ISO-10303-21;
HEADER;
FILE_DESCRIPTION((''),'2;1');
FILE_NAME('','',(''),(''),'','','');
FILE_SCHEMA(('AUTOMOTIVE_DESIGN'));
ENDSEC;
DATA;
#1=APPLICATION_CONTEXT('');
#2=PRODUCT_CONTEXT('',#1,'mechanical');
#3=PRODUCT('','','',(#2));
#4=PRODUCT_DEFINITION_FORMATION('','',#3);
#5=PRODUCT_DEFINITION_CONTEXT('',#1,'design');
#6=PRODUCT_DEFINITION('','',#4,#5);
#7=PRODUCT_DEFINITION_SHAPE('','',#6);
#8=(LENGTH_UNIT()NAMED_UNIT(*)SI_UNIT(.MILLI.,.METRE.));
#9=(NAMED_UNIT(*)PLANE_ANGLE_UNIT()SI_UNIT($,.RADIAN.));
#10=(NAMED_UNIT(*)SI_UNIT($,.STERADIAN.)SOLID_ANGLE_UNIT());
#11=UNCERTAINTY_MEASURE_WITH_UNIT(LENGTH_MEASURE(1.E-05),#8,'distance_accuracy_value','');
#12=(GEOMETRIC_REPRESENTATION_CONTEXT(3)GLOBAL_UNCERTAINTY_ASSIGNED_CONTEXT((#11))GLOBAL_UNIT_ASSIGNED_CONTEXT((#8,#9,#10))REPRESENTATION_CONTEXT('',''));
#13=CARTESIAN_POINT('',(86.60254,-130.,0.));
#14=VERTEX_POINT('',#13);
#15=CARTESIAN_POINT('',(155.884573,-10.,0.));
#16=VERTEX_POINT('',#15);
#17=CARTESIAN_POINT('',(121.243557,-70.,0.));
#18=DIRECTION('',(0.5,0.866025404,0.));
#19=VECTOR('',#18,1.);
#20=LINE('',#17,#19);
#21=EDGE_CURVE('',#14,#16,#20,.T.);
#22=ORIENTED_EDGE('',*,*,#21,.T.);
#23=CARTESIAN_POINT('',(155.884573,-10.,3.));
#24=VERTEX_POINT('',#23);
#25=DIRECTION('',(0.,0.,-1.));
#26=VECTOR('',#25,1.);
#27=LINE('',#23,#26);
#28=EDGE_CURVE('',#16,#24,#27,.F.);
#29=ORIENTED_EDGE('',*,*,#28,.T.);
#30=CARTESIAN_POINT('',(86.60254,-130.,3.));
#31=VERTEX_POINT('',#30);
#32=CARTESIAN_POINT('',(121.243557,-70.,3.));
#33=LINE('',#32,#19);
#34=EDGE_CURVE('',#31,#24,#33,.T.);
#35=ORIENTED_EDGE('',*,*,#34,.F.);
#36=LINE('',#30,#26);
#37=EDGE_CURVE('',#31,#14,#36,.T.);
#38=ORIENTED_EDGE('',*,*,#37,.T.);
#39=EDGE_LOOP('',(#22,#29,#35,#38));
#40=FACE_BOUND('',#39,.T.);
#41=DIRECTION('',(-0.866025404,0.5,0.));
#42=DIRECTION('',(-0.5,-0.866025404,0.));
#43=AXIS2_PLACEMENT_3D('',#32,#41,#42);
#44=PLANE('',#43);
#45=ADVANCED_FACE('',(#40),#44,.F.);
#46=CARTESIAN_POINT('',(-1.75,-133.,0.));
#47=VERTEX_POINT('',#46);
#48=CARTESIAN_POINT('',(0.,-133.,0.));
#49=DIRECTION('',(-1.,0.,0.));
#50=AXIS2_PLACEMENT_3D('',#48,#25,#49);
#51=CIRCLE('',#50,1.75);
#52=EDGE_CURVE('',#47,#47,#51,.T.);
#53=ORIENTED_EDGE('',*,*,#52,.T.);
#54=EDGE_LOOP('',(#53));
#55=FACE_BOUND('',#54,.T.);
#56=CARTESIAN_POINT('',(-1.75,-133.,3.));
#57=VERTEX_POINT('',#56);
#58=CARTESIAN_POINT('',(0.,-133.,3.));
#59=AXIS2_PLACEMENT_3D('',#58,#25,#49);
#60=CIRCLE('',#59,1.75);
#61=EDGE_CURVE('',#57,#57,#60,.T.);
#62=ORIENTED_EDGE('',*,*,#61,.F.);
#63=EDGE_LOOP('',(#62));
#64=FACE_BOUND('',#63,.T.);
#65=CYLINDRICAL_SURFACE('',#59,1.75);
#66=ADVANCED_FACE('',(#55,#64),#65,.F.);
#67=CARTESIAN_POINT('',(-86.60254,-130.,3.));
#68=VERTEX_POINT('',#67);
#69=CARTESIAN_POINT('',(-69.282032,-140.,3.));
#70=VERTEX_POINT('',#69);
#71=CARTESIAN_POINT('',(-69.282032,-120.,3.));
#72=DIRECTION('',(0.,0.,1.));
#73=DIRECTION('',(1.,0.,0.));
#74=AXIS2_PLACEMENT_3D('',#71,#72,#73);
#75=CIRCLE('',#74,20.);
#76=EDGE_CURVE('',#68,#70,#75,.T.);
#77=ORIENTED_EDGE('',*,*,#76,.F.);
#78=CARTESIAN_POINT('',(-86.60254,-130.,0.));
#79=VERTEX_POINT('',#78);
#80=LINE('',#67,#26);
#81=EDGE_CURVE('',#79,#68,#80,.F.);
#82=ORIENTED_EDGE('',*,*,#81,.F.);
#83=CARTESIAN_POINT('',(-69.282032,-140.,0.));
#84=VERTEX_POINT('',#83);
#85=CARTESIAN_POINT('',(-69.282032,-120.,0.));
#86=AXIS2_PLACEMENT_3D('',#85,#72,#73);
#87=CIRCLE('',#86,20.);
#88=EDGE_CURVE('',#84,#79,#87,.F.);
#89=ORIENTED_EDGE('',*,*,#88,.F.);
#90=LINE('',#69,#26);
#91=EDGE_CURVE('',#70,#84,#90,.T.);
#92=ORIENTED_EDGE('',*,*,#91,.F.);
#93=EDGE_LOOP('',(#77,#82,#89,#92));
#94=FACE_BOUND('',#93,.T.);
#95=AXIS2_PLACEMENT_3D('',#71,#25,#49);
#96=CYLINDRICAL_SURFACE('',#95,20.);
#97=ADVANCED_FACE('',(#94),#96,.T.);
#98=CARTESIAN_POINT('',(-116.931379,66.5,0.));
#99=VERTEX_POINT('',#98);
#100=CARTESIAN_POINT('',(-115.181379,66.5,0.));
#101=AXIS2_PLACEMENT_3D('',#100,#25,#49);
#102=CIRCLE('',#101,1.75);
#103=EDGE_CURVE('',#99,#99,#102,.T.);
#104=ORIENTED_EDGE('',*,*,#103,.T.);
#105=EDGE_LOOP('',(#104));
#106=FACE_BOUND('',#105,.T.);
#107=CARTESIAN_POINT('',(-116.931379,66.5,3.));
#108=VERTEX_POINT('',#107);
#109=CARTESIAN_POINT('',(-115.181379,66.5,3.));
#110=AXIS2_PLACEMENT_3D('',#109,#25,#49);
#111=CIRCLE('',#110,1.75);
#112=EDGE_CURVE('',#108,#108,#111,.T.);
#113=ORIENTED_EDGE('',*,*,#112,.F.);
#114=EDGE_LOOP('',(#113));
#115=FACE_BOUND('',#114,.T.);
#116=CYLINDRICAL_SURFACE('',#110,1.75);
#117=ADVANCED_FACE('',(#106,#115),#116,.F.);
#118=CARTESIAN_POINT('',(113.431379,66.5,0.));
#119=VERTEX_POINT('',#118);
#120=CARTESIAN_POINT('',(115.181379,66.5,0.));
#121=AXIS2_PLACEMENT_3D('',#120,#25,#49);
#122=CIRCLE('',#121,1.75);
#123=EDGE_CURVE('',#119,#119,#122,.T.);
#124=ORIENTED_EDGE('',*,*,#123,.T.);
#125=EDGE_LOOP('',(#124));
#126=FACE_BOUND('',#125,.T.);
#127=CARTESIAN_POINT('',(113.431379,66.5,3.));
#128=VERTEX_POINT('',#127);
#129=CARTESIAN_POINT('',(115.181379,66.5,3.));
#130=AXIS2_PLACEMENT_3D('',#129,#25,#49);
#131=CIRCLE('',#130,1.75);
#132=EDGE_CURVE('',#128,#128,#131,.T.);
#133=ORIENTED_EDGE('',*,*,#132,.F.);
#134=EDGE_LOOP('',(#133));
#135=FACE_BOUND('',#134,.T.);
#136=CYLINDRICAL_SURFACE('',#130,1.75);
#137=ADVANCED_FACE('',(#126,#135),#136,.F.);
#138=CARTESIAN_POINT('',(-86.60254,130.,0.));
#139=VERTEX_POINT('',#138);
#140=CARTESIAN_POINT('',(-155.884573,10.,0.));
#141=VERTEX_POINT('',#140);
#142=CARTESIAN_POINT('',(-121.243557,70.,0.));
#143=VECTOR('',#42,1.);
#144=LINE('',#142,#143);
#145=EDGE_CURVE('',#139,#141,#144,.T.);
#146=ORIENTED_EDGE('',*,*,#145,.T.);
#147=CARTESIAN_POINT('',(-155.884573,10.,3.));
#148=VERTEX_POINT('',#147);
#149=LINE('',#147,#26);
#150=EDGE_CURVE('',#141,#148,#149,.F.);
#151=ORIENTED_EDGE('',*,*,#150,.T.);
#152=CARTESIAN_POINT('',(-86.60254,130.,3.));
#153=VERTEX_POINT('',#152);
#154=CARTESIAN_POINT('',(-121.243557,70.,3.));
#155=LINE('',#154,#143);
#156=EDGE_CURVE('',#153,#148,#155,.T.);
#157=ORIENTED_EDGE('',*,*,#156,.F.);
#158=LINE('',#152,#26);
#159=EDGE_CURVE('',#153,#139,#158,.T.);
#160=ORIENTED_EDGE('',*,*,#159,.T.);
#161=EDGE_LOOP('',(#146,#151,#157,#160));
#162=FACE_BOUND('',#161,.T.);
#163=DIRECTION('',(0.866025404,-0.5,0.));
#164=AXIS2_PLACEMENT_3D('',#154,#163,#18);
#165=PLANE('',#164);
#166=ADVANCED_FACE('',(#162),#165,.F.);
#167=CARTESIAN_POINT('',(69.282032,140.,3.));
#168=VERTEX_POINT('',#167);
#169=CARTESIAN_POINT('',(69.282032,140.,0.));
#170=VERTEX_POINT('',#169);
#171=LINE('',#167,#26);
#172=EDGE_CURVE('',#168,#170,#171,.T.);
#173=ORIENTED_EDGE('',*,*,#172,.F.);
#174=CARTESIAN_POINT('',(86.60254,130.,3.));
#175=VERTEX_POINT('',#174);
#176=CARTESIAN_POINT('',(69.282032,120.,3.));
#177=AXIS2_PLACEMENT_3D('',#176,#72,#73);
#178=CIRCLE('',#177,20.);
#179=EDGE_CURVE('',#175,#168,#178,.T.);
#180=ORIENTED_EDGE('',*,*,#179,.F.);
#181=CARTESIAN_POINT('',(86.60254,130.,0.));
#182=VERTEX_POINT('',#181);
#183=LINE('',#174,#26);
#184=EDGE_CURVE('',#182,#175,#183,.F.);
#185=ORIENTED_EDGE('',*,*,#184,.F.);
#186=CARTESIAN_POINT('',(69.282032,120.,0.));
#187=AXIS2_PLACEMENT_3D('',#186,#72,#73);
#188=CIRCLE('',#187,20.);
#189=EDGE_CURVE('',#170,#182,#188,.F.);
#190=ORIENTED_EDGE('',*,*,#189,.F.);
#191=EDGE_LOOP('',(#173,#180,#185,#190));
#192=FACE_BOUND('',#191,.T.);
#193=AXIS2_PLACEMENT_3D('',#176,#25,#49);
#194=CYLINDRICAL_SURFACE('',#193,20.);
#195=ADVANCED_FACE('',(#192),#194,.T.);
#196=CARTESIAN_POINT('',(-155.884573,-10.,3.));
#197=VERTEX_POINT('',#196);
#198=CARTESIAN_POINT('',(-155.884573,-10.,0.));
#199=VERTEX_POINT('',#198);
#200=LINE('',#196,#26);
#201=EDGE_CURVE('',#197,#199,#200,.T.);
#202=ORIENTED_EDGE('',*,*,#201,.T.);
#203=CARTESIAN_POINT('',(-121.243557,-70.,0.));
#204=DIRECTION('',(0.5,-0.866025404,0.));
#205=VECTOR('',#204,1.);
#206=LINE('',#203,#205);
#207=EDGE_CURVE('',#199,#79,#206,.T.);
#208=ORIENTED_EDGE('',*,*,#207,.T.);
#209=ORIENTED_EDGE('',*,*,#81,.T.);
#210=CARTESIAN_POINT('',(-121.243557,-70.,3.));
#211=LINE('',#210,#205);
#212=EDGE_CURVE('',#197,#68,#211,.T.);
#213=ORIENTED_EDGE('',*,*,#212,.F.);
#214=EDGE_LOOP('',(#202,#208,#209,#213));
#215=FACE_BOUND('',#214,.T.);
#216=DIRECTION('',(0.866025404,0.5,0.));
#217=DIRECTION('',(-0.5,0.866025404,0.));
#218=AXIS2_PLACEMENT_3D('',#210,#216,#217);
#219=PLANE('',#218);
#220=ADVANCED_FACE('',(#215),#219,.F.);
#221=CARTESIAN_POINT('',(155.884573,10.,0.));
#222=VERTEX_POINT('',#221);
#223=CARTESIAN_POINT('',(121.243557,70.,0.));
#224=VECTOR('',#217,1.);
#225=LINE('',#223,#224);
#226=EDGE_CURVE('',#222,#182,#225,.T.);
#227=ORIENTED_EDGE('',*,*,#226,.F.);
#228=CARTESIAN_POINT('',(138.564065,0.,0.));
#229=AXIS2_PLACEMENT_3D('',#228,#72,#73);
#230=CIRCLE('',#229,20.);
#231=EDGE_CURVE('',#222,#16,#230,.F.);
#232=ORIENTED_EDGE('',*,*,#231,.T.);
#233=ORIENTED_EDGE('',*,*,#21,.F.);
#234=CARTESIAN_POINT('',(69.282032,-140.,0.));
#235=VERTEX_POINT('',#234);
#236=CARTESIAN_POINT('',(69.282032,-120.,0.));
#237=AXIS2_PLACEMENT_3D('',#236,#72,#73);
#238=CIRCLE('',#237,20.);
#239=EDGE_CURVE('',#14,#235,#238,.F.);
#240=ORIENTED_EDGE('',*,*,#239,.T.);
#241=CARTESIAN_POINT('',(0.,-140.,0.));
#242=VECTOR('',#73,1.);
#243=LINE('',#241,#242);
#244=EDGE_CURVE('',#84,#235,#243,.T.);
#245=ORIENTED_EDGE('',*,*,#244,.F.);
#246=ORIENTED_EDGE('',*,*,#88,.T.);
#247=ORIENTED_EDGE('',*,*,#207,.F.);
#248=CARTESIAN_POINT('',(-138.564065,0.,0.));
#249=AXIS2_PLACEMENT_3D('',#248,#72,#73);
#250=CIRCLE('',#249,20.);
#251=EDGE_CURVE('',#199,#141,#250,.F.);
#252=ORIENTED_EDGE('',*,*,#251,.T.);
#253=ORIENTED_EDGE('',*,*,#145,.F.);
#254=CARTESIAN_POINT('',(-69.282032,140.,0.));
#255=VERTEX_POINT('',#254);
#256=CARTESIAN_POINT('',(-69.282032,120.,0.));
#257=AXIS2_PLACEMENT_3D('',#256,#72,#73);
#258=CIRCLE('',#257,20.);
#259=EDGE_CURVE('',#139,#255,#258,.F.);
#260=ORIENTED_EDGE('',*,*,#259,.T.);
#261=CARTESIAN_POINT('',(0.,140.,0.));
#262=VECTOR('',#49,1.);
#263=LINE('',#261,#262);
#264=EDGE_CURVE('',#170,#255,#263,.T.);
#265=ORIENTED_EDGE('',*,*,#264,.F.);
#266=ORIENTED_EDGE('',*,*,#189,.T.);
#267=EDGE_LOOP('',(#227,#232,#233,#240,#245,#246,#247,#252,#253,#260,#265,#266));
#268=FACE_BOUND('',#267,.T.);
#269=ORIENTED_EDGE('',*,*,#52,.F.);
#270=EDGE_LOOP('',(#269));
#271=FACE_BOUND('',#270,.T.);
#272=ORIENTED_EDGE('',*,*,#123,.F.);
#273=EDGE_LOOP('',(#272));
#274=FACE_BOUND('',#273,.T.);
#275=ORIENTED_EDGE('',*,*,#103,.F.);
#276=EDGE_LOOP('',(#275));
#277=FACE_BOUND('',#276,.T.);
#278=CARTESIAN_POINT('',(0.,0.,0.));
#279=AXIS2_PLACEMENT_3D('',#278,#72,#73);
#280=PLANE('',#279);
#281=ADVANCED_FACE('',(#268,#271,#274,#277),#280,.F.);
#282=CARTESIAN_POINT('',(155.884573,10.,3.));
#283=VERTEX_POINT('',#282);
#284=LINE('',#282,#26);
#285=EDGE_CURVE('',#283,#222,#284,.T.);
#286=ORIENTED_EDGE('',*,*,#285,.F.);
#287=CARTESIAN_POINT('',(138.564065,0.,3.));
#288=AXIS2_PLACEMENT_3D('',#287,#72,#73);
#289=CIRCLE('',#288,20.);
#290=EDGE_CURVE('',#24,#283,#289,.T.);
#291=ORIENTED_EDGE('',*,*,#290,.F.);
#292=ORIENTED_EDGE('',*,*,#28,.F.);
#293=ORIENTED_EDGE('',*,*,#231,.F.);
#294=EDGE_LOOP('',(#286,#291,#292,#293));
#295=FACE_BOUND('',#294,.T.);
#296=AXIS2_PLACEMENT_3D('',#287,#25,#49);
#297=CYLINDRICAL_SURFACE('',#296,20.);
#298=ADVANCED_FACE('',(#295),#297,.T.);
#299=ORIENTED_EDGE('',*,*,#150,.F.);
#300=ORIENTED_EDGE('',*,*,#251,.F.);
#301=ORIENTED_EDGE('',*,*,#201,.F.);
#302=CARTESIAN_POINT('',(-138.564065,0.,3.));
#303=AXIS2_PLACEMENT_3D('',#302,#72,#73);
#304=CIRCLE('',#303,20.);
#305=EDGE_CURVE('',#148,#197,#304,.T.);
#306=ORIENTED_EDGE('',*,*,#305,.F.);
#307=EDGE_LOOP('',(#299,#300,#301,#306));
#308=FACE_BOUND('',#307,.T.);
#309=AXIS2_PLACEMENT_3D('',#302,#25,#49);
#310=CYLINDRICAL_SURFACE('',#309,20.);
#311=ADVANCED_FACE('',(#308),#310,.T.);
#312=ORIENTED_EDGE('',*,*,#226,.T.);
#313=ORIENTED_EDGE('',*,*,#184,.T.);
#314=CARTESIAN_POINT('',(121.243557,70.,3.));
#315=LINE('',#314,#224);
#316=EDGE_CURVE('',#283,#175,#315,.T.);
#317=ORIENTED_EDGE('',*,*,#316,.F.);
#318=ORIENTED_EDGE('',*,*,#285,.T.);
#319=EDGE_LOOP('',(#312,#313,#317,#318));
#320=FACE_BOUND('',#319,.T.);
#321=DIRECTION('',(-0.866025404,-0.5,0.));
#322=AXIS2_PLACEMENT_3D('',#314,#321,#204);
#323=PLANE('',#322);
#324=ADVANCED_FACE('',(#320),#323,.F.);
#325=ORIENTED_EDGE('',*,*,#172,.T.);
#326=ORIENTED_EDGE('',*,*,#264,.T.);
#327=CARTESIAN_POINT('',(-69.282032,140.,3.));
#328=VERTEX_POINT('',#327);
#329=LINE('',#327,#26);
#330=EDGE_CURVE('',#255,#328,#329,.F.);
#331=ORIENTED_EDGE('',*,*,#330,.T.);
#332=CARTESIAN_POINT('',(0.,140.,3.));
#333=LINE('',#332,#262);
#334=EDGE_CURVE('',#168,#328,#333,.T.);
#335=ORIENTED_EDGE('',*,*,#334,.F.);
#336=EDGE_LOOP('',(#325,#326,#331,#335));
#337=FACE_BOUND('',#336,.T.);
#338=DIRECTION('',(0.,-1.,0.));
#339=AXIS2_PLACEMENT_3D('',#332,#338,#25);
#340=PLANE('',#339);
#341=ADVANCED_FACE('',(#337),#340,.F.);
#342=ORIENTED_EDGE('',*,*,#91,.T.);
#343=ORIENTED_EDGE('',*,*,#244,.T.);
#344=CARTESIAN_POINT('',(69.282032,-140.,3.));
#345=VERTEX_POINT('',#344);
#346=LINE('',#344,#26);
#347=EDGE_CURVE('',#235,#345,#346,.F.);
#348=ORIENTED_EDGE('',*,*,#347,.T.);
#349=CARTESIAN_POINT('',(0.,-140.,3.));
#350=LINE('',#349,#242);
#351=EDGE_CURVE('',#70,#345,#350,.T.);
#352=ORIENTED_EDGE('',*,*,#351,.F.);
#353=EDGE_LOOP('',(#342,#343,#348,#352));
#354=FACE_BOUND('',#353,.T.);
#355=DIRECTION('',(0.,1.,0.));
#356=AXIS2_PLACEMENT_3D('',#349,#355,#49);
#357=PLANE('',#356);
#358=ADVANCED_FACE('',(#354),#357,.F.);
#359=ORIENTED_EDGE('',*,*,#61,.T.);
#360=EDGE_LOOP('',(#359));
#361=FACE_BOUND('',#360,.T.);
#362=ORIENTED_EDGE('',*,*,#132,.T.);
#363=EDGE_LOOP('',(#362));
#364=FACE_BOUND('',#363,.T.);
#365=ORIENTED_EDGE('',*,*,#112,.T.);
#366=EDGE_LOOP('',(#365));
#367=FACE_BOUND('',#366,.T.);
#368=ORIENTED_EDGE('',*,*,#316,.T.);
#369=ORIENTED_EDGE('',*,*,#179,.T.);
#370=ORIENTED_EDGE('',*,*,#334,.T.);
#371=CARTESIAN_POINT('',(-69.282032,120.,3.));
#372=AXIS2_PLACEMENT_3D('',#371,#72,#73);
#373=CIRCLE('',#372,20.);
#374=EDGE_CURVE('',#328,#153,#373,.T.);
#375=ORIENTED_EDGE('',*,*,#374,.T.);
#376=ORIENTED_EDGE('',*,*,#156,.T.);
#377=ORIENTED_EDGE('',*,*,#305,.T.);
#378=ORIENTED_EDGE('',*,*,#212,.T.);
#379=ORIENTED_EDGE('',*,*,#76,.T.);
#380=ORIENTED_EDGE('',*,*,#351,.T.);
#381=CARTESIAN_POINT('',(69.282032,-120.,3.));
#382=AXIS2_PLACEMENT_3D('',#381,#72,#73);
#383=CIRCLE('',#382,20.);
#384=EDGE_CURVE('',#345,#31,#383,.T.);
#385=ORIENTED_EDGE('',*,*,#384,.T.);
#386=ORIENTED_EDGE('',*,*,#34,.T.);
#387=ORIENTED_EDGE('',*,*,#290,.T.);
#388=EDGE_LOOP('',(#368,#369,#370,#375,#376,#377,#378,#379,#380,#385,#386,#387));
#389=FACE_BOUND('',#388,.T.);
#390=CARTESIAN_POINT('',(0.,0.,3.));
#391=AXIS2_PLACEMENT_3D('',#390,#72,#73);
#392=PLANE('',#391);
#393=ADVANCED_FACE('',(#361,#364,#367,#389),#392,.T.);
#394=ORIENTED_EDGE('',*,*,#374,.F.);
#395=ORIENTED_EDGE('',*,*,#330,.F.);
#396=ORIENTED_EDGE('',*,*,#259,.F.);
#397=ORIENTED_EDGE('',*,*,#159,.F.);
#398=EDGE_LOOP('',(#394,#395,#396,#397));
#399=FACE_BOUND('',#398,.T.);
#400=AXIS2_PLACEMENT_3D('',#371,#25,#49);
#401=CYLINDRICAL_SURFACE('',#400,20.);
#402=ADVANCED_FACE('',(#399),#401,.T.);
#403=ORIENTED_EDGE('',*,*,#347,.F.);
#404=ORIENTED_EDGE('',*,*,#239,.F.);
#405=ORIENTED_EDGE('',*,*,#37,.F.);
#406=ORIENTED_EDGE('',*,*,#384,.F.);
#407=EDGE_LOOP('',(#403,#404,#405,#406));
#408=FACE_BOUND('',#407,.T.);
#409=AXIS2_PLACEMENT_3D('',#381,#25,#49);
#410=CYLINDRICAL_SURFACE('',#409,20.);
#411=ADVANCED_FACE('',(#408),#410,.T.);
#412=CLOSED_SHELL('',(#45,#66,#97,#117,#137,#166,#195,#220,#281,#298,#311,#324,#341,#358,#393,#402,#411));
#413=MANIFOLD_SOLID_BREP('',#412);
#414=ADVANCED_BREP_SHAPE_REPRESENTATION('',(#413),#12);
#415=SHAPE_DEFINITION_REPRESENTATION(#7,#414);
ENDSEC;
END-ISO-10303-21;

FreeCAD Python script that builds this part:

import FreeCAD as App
import Part
import Sketcher
from FreeCAD import Vector
Q = App.Units.Quantity


def edges_at(feature, points):
    """Names of the edges that pass closest to the given points."""
    edges = feature.Shape.Edges
    near = lambda p: min(range(len(edges)), key=lambda i: edges[i].distToShape(Part.Vertex(*p))[0])
    return sorted({f"Edge{near(p) + 1}" for p in points})


def add_polygon(sketch, points):
    """Adds a closed chain of lines whose ends are joined by coincident constraints."""
    first, n = sketch.GeometryCount, len(points)
    for a, b in zip(points, points[1:] + points[:1]):
        sketch.addGeometry(Part.LineSegment(App.Vector(*a, 0), App.Vector(*b, 0)), False)
    for i in range(n):
        sketch.addConstraint(Sketcher.Constraint("Coincident", first + i, 2, first + (i + 1) % n, 1))

doc = App.newDocument("Part")
body = doc.addObject("PartDesign::Body", "Body")

# Sketch on XY plane
sketch1 = body.newObject("Sketcher::SketchObject", "Sketch")
sketch1.AttachmentSupport = (doc.getObject("XY_Plane"), [""])
sketch1.MapMode = "FlatFace"
add_polygon(sketch1, [(-81, -140), (81, -140), (162, 0), (81, 140), (-81, 140), (-162, 0)])  # lines 0-5
sketch1.addConstraint([
    Sketcher.Constraint("Horizontal", 0),
    Sketcher.Constraint("Horizontal", 3),
    Sketcher.Constraint("Symmetric", 0, 2, 3, 2, -1, 1),
    Sketcher.Constraint("Symmetric", 1, 2, 4, 2, -1, 1),
    Sketcher.Constraint("PointOnObject", 1, 2, -1),
    Sketcher.Constraint("Parallel", 2, 5),
    Sketcher.Constraint("Vertical", 0, 2, 2, 2),
    Sketcher.Constraint("Angle", 1, Q("60 deg")),
    Sketcher.Constraint("DistanceY", 0, 2, -1, 1, Q("140 mm")),
    Sketcher.Constraint("DistanceX", 0, 1, 0, 2, Q("161.658075 mm")),
])
pad1 = body.newObject("PartDesign::Pad", "Pad")
pad1.Profile = sketch1
pad1.Length = 3
doc.recompute()

fillet = body.newObject("PartDesign::Fillet", "Fillet")
fillet.Base = (pad1, edges_at(pad1, [
    (161.658, 0, 1.5),
    (80.829, -140, 1.5),
    (-80.829, -140, 1.5),
    (-161.658, 0, 1.5),
    (-80.829, 140, 1.5),
    (80.829, 140, 1.5),
]))
fillet.Radius = 20

# Sketch on XY plane
sketch2 = body.newObject("Sketcher::SketchObject", "Sketch001")
sketch2.AttachmentSupport = (doc.getObject("XY_Plane"), [""])
sketch2.MapMode = "FlatFace"
sketch2.addGeometry([
    Part.Circle(Vector(0, -133, 0), Vector(0, 0, 1), 1.8),
    Part.Circle(Vector(115.2, 66.5, 0), Vector(0, 0, 1), 1.8),
    Part.Circle(Vector(-115.2, 66.5, 0), Vector(0, 0, 1), 1.8),
], False)
sketch2.addConstraint([
    Sketcher.Constraint("Equal", 0, 1),
    Sketcher.Constraint("Equal", 1, 2),
    Sketcher.Constraint("Symmetric", 1, 3, 2, 3, -2),
    Sketcher.Constraint("PointOnObject", 0, 3, -2),
    Sketcher.Constraint("Diameter", 0, Q("3.5 mm")),
    Sketcher.Constraint("DistanceY", 0, 3, -1, 1, Q("133 mm")),
    Sketcher.Constraint("DistanceY", -1, 1, 1, 3, Q("66.5 mm")),
    Sketcher.Constraint("DistanceX", -1, 1, 1, 3, Q("115.181379 mm")),
])
pocket1 = body.newObject("PartDesign::Pocket", "Pocket")
pocket1.Profile = sketch2
pocket1.Type = "ThroughAll"
pocket1.Reversed = True

doc.recompute()
